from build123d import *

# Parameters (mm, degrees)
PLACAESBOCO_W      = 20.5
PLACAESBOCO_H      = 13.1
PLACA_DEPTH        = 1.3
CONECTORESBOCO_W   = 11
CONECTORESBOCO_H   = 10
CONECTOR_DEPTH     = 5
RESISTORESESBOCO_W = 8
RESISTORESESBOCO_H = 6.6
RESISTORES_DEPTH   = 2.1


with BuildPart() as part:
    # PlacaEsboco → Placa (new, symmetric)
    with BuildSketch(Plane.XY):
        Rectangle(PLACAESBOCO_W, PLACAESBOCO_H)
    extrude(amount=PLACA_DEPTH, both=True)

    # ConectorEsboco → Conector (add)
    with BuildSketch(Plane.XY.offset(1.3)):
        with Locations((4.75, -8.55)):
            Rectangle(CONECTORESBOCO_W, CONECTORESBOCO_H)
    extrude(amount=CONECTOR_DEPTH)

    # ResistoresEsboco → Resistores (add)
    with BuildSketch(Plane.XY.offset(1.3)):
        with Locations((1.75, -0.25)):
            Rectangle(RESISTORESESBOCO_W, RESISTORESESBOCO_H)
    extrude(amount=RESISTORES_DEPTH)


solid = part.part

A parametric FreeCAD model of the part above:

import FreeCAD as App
import Part
import Sketcher


def add_polygon(sketch, points):
    """Adds a closed chain of lines whose ends are joined by coincident constraints."""
    first, n = sketch.GeometryCount, len(points)
    for a, b in zip(points, points[1:] + points[:1]):
        sketch.addGeometry(Part.LineSegment(App.Vector(*a, 0), App.Vector(*b, 0)), False)
    for i in range(n):
        sketch.addConstraint(Sketcher.Constraint("Coincident", first + i, 2, first + (i + 1) % n, 1))

doc = App.newDocument("Part")
body = doc.addObject("PartDesign::Body", "Body")

# Sketch on XY plane
sketch1 = doc.addObject("Sketcher::SketchObject", "Sketch")
body.addObject(sketch1)
sketch1.AttachmentSupport = (doc.XY_Plane, [""])
sketch1.MapMode = "FlatFace"
add_polygon(sketch1, [(-10.25, 6.55), (-10.25, -6.55), (10.25, -6.55), (10.25, 6.55)])  # lines 0-3
sketch1.addConstraint([
    Sketcher.Constraint("Vertical", 0),
    Sketcher.Constraint("Horizontal", 1),
    Sketcher.Constraint("Vertical", 2),
    Sketcher.Constraint("Horizontal", 3),
    Sketcher.Constraint("Symmetric", 0, 2, 2, 2, -1, 1),
    Sketcher.Constraint("DistanceX", 1, 1, 1, 2, 20.5),
    Sketcher.Constraint("DistanceY", 0, 2, 0, 1, 13.1),
])
pad1 = doc.addObject("PartDesign::Pad", "Pad")
body.addObject(pad1)
pad1.Profile = sketch1
pad1.Length = 2.6
pad1.Midplane = True

# Sketch on XY plane
sketch2 = doc.addObject("Sketcher::SketchObject", "Sketch001")
body.addObject(sketch2)
sketch2.AttachmentSupport = (doc.XY_Plane, [""])
sketch2.MapMode = "FlatFace"
sketch2.AttachmentOffset = App.Placement(App.Vector(0, 0, 1.3), App.Rotation())
add_polygon(sketch2, [(-0.75, -3.55), (-0.75, -13.55), (10.25, -13.55), (10.25, -3.55)])  # lines 0-3
sketch2.addConstraint([
    Sketcher.Constraint("Vertical", 0),
    Sketcher.Constraint("Horizontal", 1),
    Sketcher.Constraint("Vertical", 2),
    Sketcher.Constraint("Horizontal", 3),
    Sketcher.Constraint("DistanceX", 1, 1, 1, 2, 11.0),
    Sketcher.Constraint("DistanceY", 0, 2, 0, 1, 10.0),
    Sketcher.Constraint("DistanceX", 0, 2, -1, 1, 0.75),
    Sketcher.Constraint("DistanceY", 0, 2, -1, 1, 13.55),
])
pad2 = doc.addObject("PartDesign::Pad", "Pad001")
body.addObject(pad2)
pad2.Profile = sketch2
pad2.Length = 5

# Sketch on XY plane
sketch3 = doc.addObject("Sketcher::SketchObject", "Sketch002")
body.addObject(sketch3)
sketch3.AttachmentSupport = (doc.XY_Plane, [""])
sketch3.MapMode = "FlatFace"
sketch3.AttachmentOffset = App.Placement(App.Vector(0, 0, 1.3), App.Rotation())
add_polygon(sketch3, [(-2.25, 3.05), (-2.25, -3.55), (5.75, -3.55), (5.75, 3.05)])  # lines 0-3
sketch3.addConstraint([
    Sketcher.Constraint("Vertical", 0),
    Sketcher.Constraint("Horizontal", 1),
    Sketcher.Constraint("Vertical", 2),
    Sketcher.Constraint("Horizontal", 3),
    Sketcher.Constraint("DistanceX", 1, 1, 1, 2, 8.0),
    Sketcher.Constraint("DistanceY", 0, 2, 0, 1, 6.6),
    Sketcher.Constraint("DistanceX", 0, 2, -1, 1, 2.25),
    Sketcher.Constraint("DistanceY", 0, 2, -1, 1, 3.55),
])
pad3 = doc.addObject("PartDesign::Pad", "Pad002")
body.addObject(pad3)
pad3.Profile = sketch3
pad3.Length = 2.1

doc.recompute()
